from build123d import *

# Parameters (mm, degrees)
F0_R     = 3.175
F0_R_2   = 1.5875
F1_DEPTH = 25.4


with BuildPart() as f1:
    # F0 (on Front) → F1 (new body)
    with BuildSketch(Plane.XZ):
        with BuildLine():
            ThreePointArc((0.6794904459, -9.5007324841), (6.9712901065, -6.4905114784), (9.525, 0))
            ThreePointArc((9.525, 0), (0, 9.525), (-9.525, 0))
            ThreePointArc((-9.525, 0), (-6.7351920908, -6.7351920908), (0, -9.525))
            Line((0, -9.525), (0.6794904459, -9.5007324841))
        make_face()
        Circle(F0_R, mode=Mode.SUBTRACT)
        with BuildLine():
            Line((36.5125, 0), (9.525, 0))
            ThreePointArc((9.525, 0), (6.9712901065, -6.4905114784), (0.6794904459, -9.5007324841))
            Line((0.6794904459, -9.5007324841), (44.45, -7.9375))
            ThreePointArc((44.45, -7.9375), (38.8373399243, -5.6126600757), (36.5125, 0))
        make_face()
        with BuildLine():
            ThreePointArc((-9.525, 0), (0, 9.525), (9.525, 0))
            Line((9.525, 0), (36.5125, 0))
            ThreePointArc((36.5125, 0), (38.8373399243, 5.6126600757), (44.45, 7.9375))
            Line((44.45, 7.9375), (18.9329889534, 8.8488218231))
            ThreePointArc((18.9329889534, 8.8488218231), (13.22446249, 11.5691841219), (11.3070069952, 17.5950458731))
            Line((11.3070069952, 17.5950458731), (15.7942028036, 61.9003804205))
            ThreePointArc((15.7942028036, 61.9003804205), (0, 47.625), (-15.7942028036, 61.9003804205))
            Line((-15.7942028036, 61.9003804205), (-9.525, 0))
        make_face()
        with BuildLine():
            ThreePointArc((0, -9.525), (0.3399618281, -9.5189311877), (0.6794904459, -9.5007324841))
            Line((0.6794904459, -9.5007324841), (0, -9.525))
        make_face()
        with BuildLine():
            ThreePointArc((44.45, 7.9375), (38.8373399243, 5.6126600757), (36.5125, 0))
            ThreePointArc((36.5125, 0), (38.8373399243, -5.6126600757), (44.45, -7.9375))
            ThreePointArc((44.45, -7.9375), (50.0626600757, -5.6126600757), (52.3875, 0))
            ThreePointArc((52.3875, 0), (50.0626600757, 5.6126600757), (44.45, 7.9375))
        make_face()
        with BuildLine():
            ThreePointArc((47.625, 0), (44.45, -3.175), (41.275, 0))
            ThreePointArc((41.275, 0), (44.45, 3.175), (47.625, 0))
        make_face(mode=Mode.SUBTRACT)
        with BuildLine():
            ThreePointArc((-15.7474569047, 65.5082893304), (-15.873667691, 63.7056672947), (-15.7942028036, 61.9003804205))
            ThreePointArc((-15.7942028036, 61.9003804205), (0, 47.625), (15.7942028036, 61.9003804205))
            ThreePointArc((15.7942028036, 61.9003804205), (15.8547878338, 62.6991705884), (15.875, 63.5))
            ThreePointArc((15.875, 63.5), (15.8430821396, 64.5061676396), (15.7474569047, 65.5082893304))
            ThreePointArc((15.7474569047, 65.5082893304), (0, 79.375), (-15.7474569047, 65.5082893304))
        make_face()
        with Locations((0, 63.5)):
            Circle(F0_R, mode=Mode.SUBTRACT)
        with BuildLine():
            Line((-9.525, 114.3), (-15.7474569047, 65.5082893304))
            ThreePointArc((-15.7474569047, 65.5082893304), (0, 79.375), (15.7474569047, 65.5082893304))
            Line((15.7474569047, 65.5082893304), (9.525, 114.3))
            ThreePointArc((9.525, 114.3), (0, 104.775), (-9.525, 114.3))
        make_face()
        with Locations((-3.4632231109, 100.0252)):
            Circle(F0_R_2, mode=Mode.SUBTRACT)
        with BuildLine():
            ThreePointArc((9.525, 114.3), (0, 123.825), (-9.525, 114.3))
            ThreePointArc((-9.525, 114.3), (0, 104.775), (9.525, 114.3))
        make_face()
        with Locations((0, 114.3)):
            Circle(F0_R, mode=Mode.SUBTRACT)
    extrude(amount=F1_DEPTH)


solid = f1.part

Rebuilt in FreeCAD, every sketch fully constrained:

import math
import FreeCAD as App
import Part
import Sketcher
from FreeCAD import Vector
Q = App.Units.Quantity

doc = App.newDocument("Part")
body = doc.addObject("PartDesign::Body", "Body")

# Sketch on XZ plane
sketch1 = body.newObject("Sketcher::SketchObject", "Sketch")
sketch1.AttachmentSupport = (doc.getObject("XZ_Plane"), [""])
sketch1.MapMode = "FlatFace"
sketch1.addGeometry([
    Part.LineSegment(Vector(0.7, -9.5, 0), Vector(44.5, -7.9, 0)),  # 0
    Part.ArcOfCircle(Part.Circle(Vector(44.5, 0, 0), Vector(0, 0, 1), 7.9), math.radians(-90), math.radians(0)),  # 1
    Part.ArcOfCircle(Part.Circle(Vector(44.5, 0, 0), Vector(0, 0, 1), 7.9), math.radians(0), math.radians(90)),  # 2
    Part.LineSegment(Vector(44.5, 7.9, 0), Vector(18.9, 8.8, 0)),  # 3
    Part.ArcOfCircle(Part.Circle(Vector(19.2, 16.8, 0), Vector(0, 0, 1), 8), math.radians(174), math.radians(268)),  # 4
    Part.LineSegment(Vector(11.3, 17.6, 0), Vector(15.8, 61.9, 0)),  # 5
    Part.ArcOfCircle(Part.Circle(Vector(0, 63.5, 0), Vector(0, 0, 1), 15.9), math.radians(-5.78), math.radians(0)),  # 6
    Part.ArcOfCircle(Part.Circle(Vector(0, 63.5, 0), Vector(0, 0, 1), 15.9), math.radians(0), math.radians(7.27)),  # 7
    Part.LineSegment(Vector(15.7, 65.5, 0), Vector(9.5, 114.3, 0)),  # 8
    Part.ArcOfCircle(Part.Circle(Vector(0, 114.3, 0), Vector(0, 0, 1), 9.5), math.radians(0), math.radians(180)),  # 9
    Part.LineSegment(Vector(-9.5, 114.3, 0), Vector(-15.7, 65.5, 0)),  # 10
    Part.ArcOfCircle(Part.Circle(Vector(0, 63.5, 0), Vector(0, 0, 1), 15.9), math.radians(172.73), math.radians(185.78)),  # 11
    Part.LineSegment(Vector(-15.8, 61.9, 0), Vector(-9.5, 0, 0)),  # 12
    Part.ArcOfCircle(Part.Circle(Vector(0, 0, 0), Vector(0, 0, 1), 9.5), math.radians(180), math.radians(270)),  # 13
    Part.ArcOfCircle(Part.Circle(Vector(0, 0, 0), Vector(0, 0, 1), 9.5), math.radians(-90), math.radians(-85.91)),  # 14
    Part.Circle(Vector(0, 0, 0), Vector(0, 0, 1), 3.2),  # 15
    Part.Circle(Vector(44.5, 0, 0), Vector(0, 0, 1), 3.2),  # 16
    Part.Circle(Vector(0, 63.5, 0), Vector(0, 0, 1), 3.2),  # 17
    Part.Circle(Vector(-3.5, 100, 0), Vector(0, 0, 1), 1.6),  # 18
    Part.Circle(Vector(0, 114.3, 0), Vector(0, 0, 1), 3.2),  # 19
], False)
sketch1.addConstraint([
    Sketcher.Constraint("Coincident", 0, 2, 1, 1),
    Sketcher.Constraint("Tangent", 1, 2, 2, 1),
    Sketcher.Constraint("Coincident", 2, 2, 3, 1),
    Sketcher.Constraint("Tangent", 3, 2, 4, 2),
    Sketcher.Constraint("Tangent", 4, 1, 5, 1),
    Sketcher.Constraint("Tangent", 5, 2, 6, 1),
    Sketcher.Constraint("Tangent", 6, 2, 7, 1),
    Sketcher.Constraint("Tangent", 7, 2, 8, 1),
    Sketcher.Constraint("Coincident", 8, 2, 9, 1),
    Sketcher.Constraint("Coincident", 9, 2, 10, 1),
    Sketcher.Constraint("Tangent", 10, 2, 11, 1),
    Sketcher.Constraint("Tangent", 11, 2, 12, 1),
    Sketcher.Constraint("Coincident", 12, 2, 13, 1),
    Sketcher.Constraint("Tangent", 13, 2, 14, 1),
    Sketcher.Constraint("Coincident", 14, 2, 0, 1),
    Sketcher.Constraint("Coincident", 13, 3, -1, 1),
    Sketcher.Constraint("Coincident", 15, 3, -1, 1),
    Sketcher.Constraint("Coincident", 11, 3, 6, 3),
    Sketcher.Constraint("Coincident", 16, 3, 1, 3),
    Sketcher.Constraint("Coincident", 17, 3, 6, 3),
    Sketcher.Constraint("Coincident", 19, 3, 9, 3),
    Sketcher.Constraint("Equal", 1, 2),
    Sketcher.Constraint("Equal", 6, 7),
    Sketcher.Constraint("Equal", 7, 11),
    Sketcher.Constraint("Equal", 9, 13),
    Sketcher.Constraint("Equal", 13, 14),
    Sketcher.Constraint("Equal", 15, 16),
    Sketcher.Constraint("Equal", 16, 17),
    Sketcher.Constraint("Equal", 17, 19),
    Sketcher.Constraint("Symmetric", 8, 2, 9, 2, -2),
    Sketcher.Constraint("Symmetric", 5, 2, 11, 2, -2),
    Sketcher.Constraint("Symmetric", 0, 2, 2, 2, -1),
    Sketcher.Constraint("PointOnObject", 1, 2, -1),
    Sketcher.Constraint("PointOnObject", 12, 2, -1),
    Sketcher.Constraint("PointOnObject", 13, 2, -2),
    Sketcher.Constraint("Horizontal", 17, 3, 6, 2),
    Sketcher.Constraint("Horizontal", 19, 3, 8, 2),
    Sketcher.Constraint("Vertical", 16, 3, 0, 2),
    Sketcher.Constraint("Diameter", 15, Q("0.25 in")),
    Sketcher.Constraint("Diameter", 18, Q("0.125 in")),
    Sketcher.Constraint("Radius", 1, Q("0.3125 in")),
    Sketcher.Constraint("Radius", 4, Q("0.313 in")),
    Sketcher.Constraint("Radius", 6, Q("0.625 in")),
    Sketcher.Constraint("Radius", 9, Q("0.375 in")),
    Sketcher.Constraint("DistanceY", 7, 3, 9, 3, Q("2 in")),
    Sketcher.Constraint("DistanceY", -1, 1, 6, 3, Q("2.5 in")),
    Sketcher.Constraint("DistanceX", -1, 1, 1, 3, Q("1.75 in")),
    Sketcher.Constraint("DistanceY", -1, 1, 18, 3, Q("3.938 in")),
    Sketcher.Constraint("Distance", 3, 25.533279),
    Sketcher.Constraint("DistanceX", -1, 1, 14, 2, 0.67949),
    Sketcher.Constraint("DistanceX", 18, 3, -1, 1, 3.463223),
])
pad1 = body.newObject("PartDesign::Pad", "Pad")
pad1.Profile = sketch1
pad1.Length = Q("1 in")

doc.recompute()
